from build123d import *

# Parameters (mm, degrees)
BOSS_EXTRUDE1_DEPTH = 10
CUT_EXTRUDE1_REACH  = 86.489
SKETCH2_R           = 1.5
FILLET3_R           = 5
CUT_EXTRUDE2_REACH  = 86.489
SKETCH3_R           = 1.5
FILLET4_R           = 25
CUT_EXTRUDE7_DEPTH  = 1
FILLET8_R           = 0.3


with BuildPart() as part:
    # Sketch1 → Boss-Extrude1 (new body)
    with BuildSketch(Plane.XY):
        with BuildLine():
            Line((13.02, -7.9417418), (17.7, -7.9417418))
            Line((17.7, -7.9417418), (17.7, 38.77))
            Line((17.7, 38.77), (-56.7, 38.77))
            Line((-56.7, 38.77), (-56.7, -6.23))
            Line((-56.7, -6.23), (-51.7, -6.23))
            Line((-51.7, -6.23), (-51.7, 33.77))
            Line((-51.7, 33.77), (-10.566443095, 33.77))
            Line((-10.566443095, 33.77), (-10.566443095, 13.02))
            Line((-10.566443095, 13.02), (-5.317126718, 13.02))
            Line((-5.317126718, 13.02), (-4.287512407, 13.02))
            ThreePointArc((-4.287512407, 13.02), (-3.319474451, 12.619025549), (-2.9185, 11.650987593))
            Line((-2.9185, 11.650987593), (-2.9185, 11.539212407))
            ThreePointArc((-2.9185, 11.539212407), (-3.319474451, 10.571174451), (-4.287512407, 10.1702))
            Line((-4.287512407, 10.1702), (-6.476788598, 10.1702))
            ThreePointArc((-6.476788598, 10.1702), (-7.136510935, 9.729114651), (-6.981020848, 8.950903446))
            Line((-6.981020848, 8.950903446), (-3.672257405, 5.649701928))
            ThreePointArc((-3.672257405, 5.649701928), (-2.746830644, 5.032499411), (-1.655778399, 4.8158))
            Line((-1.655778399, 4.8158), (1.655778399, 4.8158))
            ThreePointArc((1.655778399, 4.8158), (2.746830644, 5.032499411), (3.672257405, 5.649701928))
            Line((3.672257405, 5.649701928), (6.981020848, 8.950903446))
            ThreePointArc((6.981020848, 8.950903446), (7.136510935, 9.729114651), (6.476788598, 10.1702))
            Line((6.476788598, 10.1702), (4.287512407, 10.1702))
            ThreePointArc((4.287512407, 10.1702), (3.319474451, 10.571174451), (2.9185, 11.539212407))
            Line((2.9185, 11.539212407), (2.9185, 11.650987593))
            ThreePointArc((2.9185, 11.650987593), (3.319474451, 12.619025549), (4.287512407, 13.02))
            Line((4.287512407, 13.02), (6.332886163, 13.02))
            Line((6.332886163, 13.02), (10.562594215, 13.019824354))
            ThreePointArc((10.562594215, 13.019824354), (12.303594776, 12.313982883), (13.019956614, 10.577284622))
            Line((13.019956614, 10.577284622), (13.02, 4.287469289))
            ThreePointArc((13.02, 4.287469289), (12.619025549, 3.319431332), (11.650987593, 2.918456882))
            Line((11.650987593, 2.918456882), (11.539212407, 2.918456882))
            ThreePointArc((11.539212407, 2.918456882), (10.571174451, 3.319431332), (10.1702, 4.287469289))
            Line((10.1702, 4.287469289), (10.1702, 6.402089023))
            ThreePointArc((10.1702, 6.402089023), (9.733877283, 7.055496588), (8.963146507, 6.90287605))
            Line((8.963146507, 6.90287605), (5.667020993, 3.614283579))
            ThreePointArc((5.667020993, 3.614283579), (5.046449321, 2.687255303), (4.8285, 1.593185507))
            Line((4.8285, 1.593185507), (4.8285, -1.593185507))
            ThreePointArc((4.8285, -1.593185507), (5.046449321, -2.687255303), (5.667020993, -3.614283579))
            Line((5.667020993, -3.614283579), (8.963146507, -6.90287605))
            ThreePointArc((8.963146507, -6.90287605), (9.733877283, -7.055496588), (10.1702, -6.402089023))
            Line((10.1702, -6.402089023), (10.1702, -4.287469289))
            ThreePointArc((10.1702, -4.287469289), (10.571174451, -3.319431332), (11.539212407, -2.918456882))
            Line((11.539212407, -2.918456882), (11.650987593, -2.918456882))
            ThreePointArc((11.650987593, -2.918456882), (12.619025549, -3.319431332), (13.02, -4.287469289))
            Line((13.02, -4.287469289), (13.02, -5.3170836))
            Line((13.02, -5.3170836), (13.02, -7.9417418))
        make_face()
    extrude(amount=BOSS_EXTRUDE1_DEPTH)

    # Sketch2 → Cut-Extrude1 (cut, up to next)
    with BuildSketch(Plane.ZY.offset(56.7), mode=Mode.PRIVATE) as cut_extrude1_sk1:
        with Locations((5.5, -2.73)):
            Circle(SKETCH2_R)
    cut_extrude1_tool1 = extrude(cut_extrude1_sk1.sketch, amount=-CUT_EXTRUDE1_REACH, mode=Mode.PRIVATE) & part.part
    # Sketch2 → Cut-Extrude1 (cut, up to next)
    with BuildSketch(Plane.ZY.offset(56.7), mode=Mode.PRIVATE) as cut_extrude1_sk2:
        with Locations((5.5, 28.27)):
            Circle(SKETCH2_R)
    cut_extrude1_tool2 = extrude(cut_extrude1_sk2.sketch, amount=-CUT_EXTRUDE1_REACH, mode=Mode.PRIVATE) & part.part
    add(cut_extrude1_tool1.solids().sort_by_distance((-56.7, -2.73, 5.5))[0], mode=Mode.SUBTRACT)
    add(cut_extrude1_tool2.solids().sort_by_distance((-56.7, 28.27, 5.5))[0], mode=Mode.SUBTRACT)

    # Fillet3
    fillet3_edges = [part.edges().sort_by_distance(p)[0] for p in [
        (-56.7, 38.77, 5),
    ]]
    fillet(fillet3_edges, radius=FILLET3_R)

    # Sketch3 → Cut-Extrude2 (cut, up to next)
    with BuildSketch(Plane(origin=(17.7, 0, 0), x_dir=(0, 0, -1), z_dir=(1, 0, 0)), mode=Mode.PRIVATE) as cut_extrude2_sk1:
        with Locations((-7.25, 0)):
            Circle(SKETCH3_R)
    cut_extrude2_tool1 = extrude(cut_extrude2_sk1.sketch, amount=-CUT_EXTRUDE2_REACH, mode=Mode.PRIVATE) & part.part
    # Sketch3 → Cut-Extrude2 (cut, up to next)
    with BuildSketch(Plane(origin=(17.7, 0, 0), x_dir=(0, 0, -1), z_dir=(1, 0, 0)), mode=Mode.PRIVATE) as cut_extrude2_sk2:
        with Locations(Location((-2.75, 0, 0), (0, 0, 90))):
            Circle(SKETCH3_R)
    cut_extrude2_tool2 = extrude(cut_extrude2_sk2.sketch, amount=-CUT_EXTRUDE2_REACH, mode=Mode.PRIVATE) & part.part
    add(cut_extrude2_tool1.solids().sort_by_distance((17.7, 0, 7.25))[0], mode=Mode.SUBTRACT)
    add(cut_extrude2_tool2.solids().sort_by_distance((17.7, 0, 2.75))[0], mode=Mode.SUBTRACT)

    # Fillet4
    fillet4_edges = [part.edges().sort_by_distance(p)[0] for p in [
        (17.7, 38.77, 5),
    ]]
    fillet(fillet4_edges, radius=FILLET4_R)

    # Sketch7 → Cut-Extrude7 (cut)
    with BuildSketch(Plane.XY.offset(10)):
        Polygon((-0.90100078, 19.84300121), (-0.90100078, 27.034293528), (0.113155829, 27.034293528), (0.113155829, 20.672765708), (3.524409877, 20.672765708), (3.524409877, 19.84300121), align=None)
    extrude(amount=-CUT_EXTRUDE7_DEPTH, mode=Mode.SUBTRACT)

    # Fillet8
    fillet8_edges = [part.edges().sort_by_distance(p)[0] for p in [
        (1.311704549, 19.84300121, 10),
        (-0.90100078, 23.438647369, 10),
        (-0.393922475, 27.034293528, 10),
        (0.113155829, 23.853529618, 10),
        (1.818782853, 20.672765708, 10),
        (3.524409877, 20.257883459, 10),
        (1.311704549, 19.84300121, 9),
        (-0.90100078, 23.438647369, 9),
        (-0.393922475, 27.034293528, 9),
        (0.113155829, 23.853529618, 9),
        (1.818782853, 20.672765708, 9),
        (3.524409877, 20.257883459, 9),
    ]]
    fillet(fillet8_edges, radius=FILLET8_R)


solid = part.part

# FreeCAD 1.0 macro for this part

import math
import FreeCAD as App
import Part
import Sketcher


def edges_at(feature, points):
    """Names of the edges that pass closest to the given points."""
    edges = feature.Shape.Edges
    near = lambda p: min(range(len(edges)), key=lambda i: edges[i].distToShape(Part.Vertex(*p))[0])
    return sorted({f"Edge{near(p) + 1}" for p in points})


def add_polygon(sketch, points):
    """Adds a closed chain of lines whose ends are joined by coincident constraints."""
    first, n = sketch.GeometryCount, len(points)
    for a, b in zip(points, points[1:] + points[:1]):
        sketch.addGeometry(Part.LineSegment(App.Vector(*a, 0), App.Vector(*b, 0)), False)
    for i in range(n):
        sketch.addConstraint(Sketcher.Constraint("Coincident", first + i, 2, first + (i + 1) % n, 1))

doc = App.newDocument("Part")
body = doc.addObject("PartDesign::Body", "Body")

# Sketch on XY plane
sketch1 = body.newObject("Sketcher::SketchObject", "Sketch")
sketch1.AttachmentSupport = (doc.getObject("XY_Plane"), [""])
sketch1.MapMode = "FlatFace"
sketch1.addGeometry(Part.LineSegment(App.Vector(13.02, -7.941742, 0), App.Vector(17.7, -7.941742, 0)), False)
sketch1.addGeometry(Part.LineSegment(App.Vector(17.7, -7.941742, 0), App.Vector(17.7, 38.77, 0)), False)
sketch1.addGeometry(Part.LineSegment(App.Vector(17.7, 38.77, 0), App.Vector(-56.7, 38.77, 0)), False)
sketch1.addGeometry(Part.LineSegment(App.Vector(-56.7, 38.77, 0), App.Vector(-56.7, -6.23, 0)), False)
sketch1.addGeometry(Part.LineSegment(App.Vector(-56.7, -6.23, 0), App.Vector(-51.7, -6.23, 0)), False)
sketch1.addGeometry(Part.LineSegment(App.Vector(-51.7, -6.23, 0), App.Vector(-51.7, 33.77, 0)), False)
sketch1.addGeometry(Part.LineSegment(App.Vector(-51.7, 33.77, 0), App.Vector(-10.566443, 33.77, 0)), False)
sketch1.addGeometry(Part.LineSegment(App.Vector(-10.566443, 33.77, 0), App.Vector(-10.566443, 13.02, 0)), False)
sketch1.addGeometry(Part.LineSegment(App.Vector(-10.566443, 13.02, 0), App.Vector(-4.287512, 13.02, 0)), False)
sketch1.addGeometry(Part.ArcOfCircle(Part.Circle(App.Vector(-4.287512, 11.650988, 0), App.Vector(0, 0, 1), 1.369012), math.radians(0), math.radians(90)), False)
sketch1.addGeometry(Part.LineSegment(App.Vector(-2.9185, 11.650988, 0), App.Vector(-2.9185, 11.539212, 0)), False)
sketch1.addGeometry(Part.ArcOfCircle(Part.Circle(App.Vector(-4.287512, 11.539212, 0), App.Vector(0, 0, 1), 1.369012), math.radians(-90), math.radians(0)), False)
sketch1.addGeometry(Part.LineSegment(App.Vector(-4.287512, 10.1702, 0), App.Vector(-6.476789, 10.1702, 0)), False)
sketch1.addGeometry(Part.ArcOfCircle(Part.Circle(App.Vector(-6.476789, 9.456291, 0), App.Vector(0, 0, 1), 0.713909), math.radians(90), math.radians(225.065547)), False)
sketch1.addGeometry(Part.LineSegment(App.Vector(-6.981021, 8.950903, 0), App.Vector(-3.672257, 5.649702, 0)), False)
sketch1.addGeometry(Part.ArcOfCircle(Part.Circle(App.Vector(-1.655778, 7.6708, 0), App.Vector(0, 0, 1), 2.855), math.radians(-134.934453), math.radians(-90)), False)
sketch1.addGeometry(Part.LineSegment(App.Vector(-1.655778, 4.8158, 0), App.Vector(1.655778, 4.8158, 0)), False)
sketch1.addGeometry(Part.ArcOfCircle(Part.Circle(App.Vector(1.655778, 7.6708, 0), App.Vector(0, 0, 1), 2.855), math.radians(-90), math.radians(-45.065547)), False)
sketch1.addGeometry(Part.LineSegment(App.Vector(3.672257, 5.649702, 0), App.Vector(6.981021, 8.950903, 0)), False)
sketch1.addGeometry(Part.ArcOfCircle(Part.Circle(App.Vector(6.476789, 9.456291, 0), App.Vector(0, 0, 1), 0.713909), math.radians(-45.065547), math.radians(90)), False)
sketch1.addGeometry(Part.LineSegment(App.Vector(6.476789, 10.1702, 0), App.Vector(4.287512, 10.1702, 0)), False)
sketch1.addGeometry(Part.ArcOfCircle(Part.Circle(App.Vector(4.287512, 11.539212, 0), App.Vector(0, 0, 1), 1.369012), math.radians(-180), math.radians(-90)), False)
sketch1.addGeometry(Part.LineSegment(App.Vector(2.9185, 11.539212, 0), App.Vector(2.9185, 11.650988, 0)), False)
sketch1.addGeometry(Part.ArcOfCircle(Part.Circle(App.Vector(4.287512, 11.650988, 0), App.Vector(0, 0, 1), 1.369012), math.radians(90), math.radians(180)), False)
sketch1.addGeometry(Part.LineSegment(App.Vector(4.287512, 13.02, 0), App.Vector(6.332886, 13.02, 0)), False)
sketch1.addGeometry(Part.LineSegment(App.Vector(6.332886, 13.02, 0), App.Vector(10.562594, 13.019824, 0)), False)
sketch1.addGeometry(Part.ArcOfCircle(Part.Circle(App.Vector(10.5918, 10.5918, 0), App.Vector(0, 0, 1), 2.4282), math.radians(-0.342507), math.radians(90.689156)), False)
sketch1.addGeometry(Part.LineSegment(App.Vector(13.019957, 10.577285, 0), App.Vector(13.02, 4.287469, 0)), False)
sketch1.addGeometry(Part.ArcOfCircle(Part.Circle(App.Vector(11.650988, 4.287469, 0), App.Vector(0, 0, 1), 1.369012), math.radians(-90), math.radians(0)), False)
sketch1.addGeometry(Part.LineSegment(App.Vector(11.650988, 2.918457, 0), App.Vector(11.539212, 2.918457, 0)), False)
sketch1.addGeometry(Part.ArcOfCircle(Part.Circle(App.Vector(11.539212, 4.287469, 0), App.Vector(0, 0, 1), 1.369012), math.radians(180), math.radians(270)), False)
sketch1.addGeometry(Part.LineSegment(App.Vector(10.1702, 4.287469, 0), App.Vector(10.1702, 6.402089, 0)), False)
sketch1.addGeometry(Part.ArcOfCircle(Part.Circle(App.Vector(9.462789, 6.402089, 0), App.Vector(0, 0, 1), 0.707411), math.radians(0), math.radians(134.934453)), False)
sketch1.addGeometry(Part.LineSegment(App.Vector(8.963147, 6.902876, 0), App.Vector(5.667021, 3.614284, 0)), False)
sketch1.addGeometry(Part.ArcOfCircle(Part.Circle(App.Vector(7.6835, 1.593186, 0), App.Vector(0, 0, 1), 2.855), math.radians(134.934453), math.radians(180)), False)
sketch1.addGeometry(Part.LineSegment(App.Vector(4.8285, 1.593186, 0), App.Vector(4.8285, -1.593186, 0)), False)
sketch1.addGeometry(Part.ArcOfCircle(Part.Circle(App.Vector(7.6835, -1.593186, 0), App.Vector(0, 0, 1), 2.855), math.radians(180), math.radians(225.065547)), False)
sketch1.addGeometry(Part.LineSegment(App.Vector(5.667021, -3.614284, 0), App.Vector(8.963147, -6.902876, 0)), False)
sketch1.addGeometry(Part.ArcOfCircle(Part.Circle(App.Vector(9.462789, -6.402089, 0), App.Vector(0, 0, 1), 0.707411), math.radians(-134.934453), math.radians(0)), False)
sketch1.addGeometry(Part.LineSegment(App.Vector(10.1702, -6.402089, 0), App.Vector(10.1702, -4.287469, 0)), False)
sketch1.addGeometry(Part.ArcOfCircle(Part.Circle(App.Vector(11.539212, -4.287469, 0), App.Vector(0, 0, 1), 1.369012), math.radians(90), math.radians(180)), False)
sketch1.addGeometry(Part.LineSegment(App.Vector(11.539212, -2.918457, 0), App.Vector(11.650988, -2.918457, 0)), False)
sketch1.addGeometry(Part.ArcOfCircle(Part.Circle(App.Vector(11.650988, -4.287469, 0), App.Vector(0, 0, 1), 1.369012), math.radians(0), math.radians(90)), False)
sketch1.addGeometry(Part.LineSegment(App.Vector(13.02, -4.287469, 0), App.Vector(13.02, -7.941742, 0)), False)
sketch1.addConstraint(Sketcher.Constraint("Coincident", 0, 2, 1, 1))
sketch1.addConstraint(Sketcher.Constraint("Coincident", 1, 2, 2, 1))
sketch1.addConstraint(Sketcher.Constraint("Coincident", 2, 2, 3, 1))
sketch1.addConstraint(Sketcher.Constraint("Coincident", 3, 2, 4, 1))
sketch1.addConstraint(Sketcher.Constraint("Coincident", 4, 2, 5, 1))
sketch1.addConstraint(Sketcher.Constraint("Coincident", 5, 2, 6, 1))
sketch1.addConstraint(Sketcher.Constraint("Coincident", 6, 2, 7, 1))
sketch1.addConstraint(Sketcher.Constraint("Coincident", 7, 2, 8, 1))
sketch1.addConstraint(Sketcher.Constraint("Tangent", 8, 2, 9, 2))
sketch1.addConstraint(Sketcher.Constraint("Tangent", 9, 1, 10, 1))
sketch1.addConstraint(Sketcher.Constraint("Tangent", 10, 2, 11, 2))
sketch1.addConstraint(Sketcher.Constraint("Tangent", 11, 1, 12, 1))
sketch1.addConstraint(Sketcher.Constraint("Tangent", 12, 2, 13, 1))
sketch1.addConstraint(Sketcher.Constraint("Tangent", 13, 2, 14, 1))
sketch1.addConstraint(Sketcher.Constraint("Tangent", 14, 2, 15, 1))
sketch1.addConstraint(Sketcher.Constraint("Tangent", 15, 2, 16, 1))
sketch1.addConstraint(Sketcher.Constraint("Tangent", 16, 2, 17, 1))
sketch1.addConstraint(Sketcher.Constraint("Tangent", 17, 2, 18, 1))
sketch1.addConstraint(Sketcher.Constraint("Tangent", 18, 2, 19, 1))
sketch1.addConstraint(Sketcher.Constraint("Tangent", 19, 2, 20, 1))
sketch1.addConstraint(Sketcher.Constraint("Tangent", 20, 2, 21, 2))
sketch1.addConstraint(Sketcher.Constraint("Tangent", 21, 1, 22, 1))
sketch1.addConstraint(Sketcher.Constraint("Tangent", 22, 2, 23, 2))
sketch1.addConstraint(Sketcher.Constraint("Tangent", 23, 1, 24, 1))
sketch1.addConstraint(Sketcher.Constraint("Coincident", 24, 2, 25, 1))
sketch1.addConstraint(Sketcher.Constraint("Coincident", 25, 2, 26, 2))
sketch1.addConstraint(Sketcher.Constraint("Coincident", 26, 1, 27, 1))
sketch1.addConstraint(Sketcher.Constraint("Coincident", 27, 2, 28, 2))
sketch1.addConstraint(Sketcher.Constraint("Tangent", 28, 1, 29, 1))
sketch1.addConstraint(Sketcher.Constraint("Tangent", 29, 2, 30, 2))
sketch1.addConstraint(Sketcher.Constraint("Tangent", 30, 1, 31, 1))
sketch1.addConstraint(Sketcher.Constraint("Tangent", 31, 2, 32, 1))
sketch1.addConstraint(Sketcher.Constraint("Tangent", 32, 2, 33, 1))
sketch1.addConstraint(Sketcher.Constraint("Tangent", 33, 2, 34, 1))
sketch1.addConstraint(Sketcher.Constraint("Tangent", 34, 2, 35, 1))
sketch1.addConstraint(Sketcher.Constraint("Tangent", 35, 2, 36, 1))
sketch1.addConstraint(Sketcher.Constraint("Tangent", 36, 2, 37, 1))
sketch1.addConstraint(Sketcher.Constraint("Tangent", 37, 2, 38, 1))
sketch1.addConstraint(Sketcher.Constraint("Tangent", 38, 2, 39, 1))
sketch1.addConstraint(Sketcher.Constraint("Tangent", 39, 2, 40, 2))
sketch1.addConstraint(Sketcher.Constraint("Tangent", 40, 1, 41, 1))
sketch1.addConstraint(Sketcher.Constraint("Tangent", 41, 2, 42, 2))
sketch1.addConstraint(Sketcher.Constraint("Tangent", 42, 1, 43, 1))
sketch1.addConstraint(Sketcher.Constraint("Coincident", 43, 2, 0, 1))
sketch1.addConstraint(Sketcher.Constraint("Horizontal", 0))
sketch1.addConstraint(Sketcher.Constraint("Vertical", 1))
sketch1.addConstraint(Sketcher.Constraint("Horizontal", 2))
sketch1.addConstraint(Sketcher.Constraint("Vertical", 3))
sketch1.addConstraint(Sketcher.Constraint("Horizontal", 4))
sketch1.addConstraint(Sketcher.Constraint("Vertical", 5))
sketch1.addConstraint(Sketcher.Constraint("Horizontal", 6))
sketch1.addConstraint(Sketcher.Constraint("Vertical", 7))
sketch1.addConstraint(Sketcher.Constraint("Horizontal", 8))
sketch1.addConstraint(Sketcher.Constraint("Vertical", 10))
sketch1.addConstraint(Sketcher.Constraint("Horizontal", 12))
sketch1.addConstraint(Sketcher.Constraint("Horizontal", 16))
sketch1.addConstraint(Sketcher.Constraint("Horizontal", 20))
sketch1.addConstraint(Sketcher.Constraint("Vertical", 22))
sketch1.addConstraint(Sketcher.Constraint("Horizontal", 24))
sketch1.addConstraint(Sketcher.Constraint("Horizontal", 29))
sketch1.addConstraint(Sketcher.Constraint("Vertical", 31))
sketch1.addConstraint(Sketcher.Constraint("Vertical", 35))
sketch1.addConstraint(Sketcher.Constraint("Vertical", 39))
sketch1.addConstraint(Sketcher.Constraint("Horizontal", 41))
sketch1.addConstraint(Sketcher.Constraint("Vertical", 43))
sketch1.addConstraint(Sketcher.Constraint("Equal", 9, 11))
sketch1.addConstraint(Sketcher.Constraint("Equal", 15, 17))
sketch1.addConstraint(Sketcher.Constraint("Equal", 13, 19))
sketch1.addConstraint(Sketcher.Constraint("Equal", 11, 21))
sketch1.addConstraint(Sketcher.Constraint("Equal", 21, 23))
sketch1.addConstraint(Sketcher.Constraint("Equal", 23, 28))
sketch1.addConstraint(Sketcher.Constraint("Equal", 28, 30))
sketch1.addConstraint(Sketcher.Constraint("Equal", 17, 34))
sketch1.addConstraint(Sketcher.Constraint("Equal", 34, 36))
sketch1.addConstraint(Sketcher.Constraint("Equal", 32, 38))
sketch1.addConstraint(Sketcher.Constraint("Equal", 30, 40))
sketch1.addConstraint(Sketcher.Constraint("Equal", 40, 42))
sketch1.addConstraint(Sketcher.Constraint("Symmetric", 13, 3, 19, 3, -2))
sketch1.addConstraint(Sketcher.Constraint("Symmetric", 9, 3, 23, 3, -2))
sketch1.addConstraint(Sketcher.Constraint("Symmetric", 32, 3, 38, 3, -1))
sketch1.addConstraint(Sketcher.Constraint("Symmetric", 28, 3, 42, 3, -1))
sketch1.addConstraint(Sketcher.Constraint("Parallel", 18, 33))
sketch1.addConstraint(Sketcher.Constraint("Parallel", 14, 37))
sketch1.addConstraint(Sketcher.Constraint("Horizontal", 14, 2, 17, 2))
sketch1.addConstraint(Sketcher.Constraint("Horizontal", 30, 3, 27, 2))
sketch1.addConstraint(Sketcher.Constraint("Equal", 41, 10))
sketch1.addConstraint(Sketcher.Constraint("DistanceX", 4, 1, 4, 2, 5.0))
sketch1.addConstraint(Sketcher.Constraint("DistanceY", 3, 2, 3, 1, 45.0))
sketch1.addConstraint(Sketcher.Constraint("DistanceY", 5, 1, 5, 2, 40.0))
sketch1.addConstraint(Sketcher.Constraint("DistanceX", 2, 2, 2, 1, 74.4))
sketch1.addConstraint(Sketcher.Constraint("Radius", 15, 2.855))
sketch1.addConstraint(Sketcher.Constraint("DistanceX", 0, 1, 0, 2, 4.68))
sketch1.addConstraint(Sketcher.Constraint("DistanceY", 7, 2, 7, 1, 20.75))
sketch1.addConstraint(Sketcher.Constraint("DistanceX", -1, 1, 0, 2, 17.7))
sketch1.addConstraint(Sketcher.Constraint("Radius", 26, 2.4282))
sketch1.addConstraint(Sketcher.Constraint("DistanceY", -1, 1, 1, 2, 38.77))
sketch1.addConstraint(Sketcher.Constraint("Radius", 13, 0.713909))
sketch1.addConstraint(Sketcher.Constraint("Radius", 32, 0.707411))
sketch1.addConstraint(Sketcher.Constraint("Radius", 9, 1.369012))
sketch1.addConstraint(Sketcher.Constraint("Distance", 33, 4.656102))
sketch1.addConstraint(Sketcher.Constraint("DistanceX", 8, 1, 8, 2, 6.278931))
sketch1.addConstraint(Sketcher.Constraint("DistanceY", 1, 1, 1, 2, 46.711742))
sketch1.addConstraint(Sketcher.Constraint("DistanceY", 31, 1, 31, 2, 2.11462))
sketch1.addConstraint(Sketcher.Constraint("DistanceY", 35, 2, 35, 1, 3.186371))
sketch1.addConstraint(Sketcher.Constraint("DistanceY", -1, 1, 15, 3, 7.6708))
sketch1.addConstraint(Sketcher.Constraint("DistanceX", -1, 1, 26, 3, 10.5918))
sketch1.addConstraint(Sketcher.Constraint("DistanceY", -1, 1, 26, 3, 10.5918))
sketch1.addConstraint(Sketcher.Constraint("DistanceX", -1, 1, 34, 3, 7.6835))
sketch1.addConstraint(Sketcher.Constraint("DistanceX", 9, 1, -1, 1, 2.9185))
sketch1.addConstraint(Sketcher.Constraint("DistanceY", -1, 1, 11, 1, 10.1702))
sketch1.addConstraint(Sketcher.Constraint("Distance", 25, 4.229708))
sketch1.addConstraint(Sketcher.Constraint("DistanceX", 12, 2, 12, 1, 2.189276))
sketch1.addConstraint(Sketcher.Constraint("DistanceX", 24, 1, 24, 2, 2.045374))
sketch1.addConstraint(Sketcher.Constraint("Distance", 27, 6.289815))
pad1 = body.newObject("PartDesign::Pad", "Pad")
pad1.Profile = sketch1
pad1.Length = 10

# Sketch on YZ plane
sketch2 = body.newObject("Sketcher::SketchObject", "Sketch001")
sketch2.AttachmentSupport = (doc.getObject("YZ_Plane"), [""])
sketch2.MapMode = "FlatFace"
sketch2.AttachmentOffset = App.Placement(App.Vector(0, 0, -56.7), App.Rotation())
sketch2.addGeometry(Part.Circle(App.Vector(-2.73, 5.5, 0), App.Vector(0, 0, 1), 1.5), False)
sketch2.addConstraint(Sketcher.Constraint("Diameter", 0, 3.0))
sketch2.addConstraint(Sketcher.Constraint("DistanceY", -1, 1, 0, 3, 5.5))
sketch2.addConstraint(Sketcher.Constraint("DistanceX", 0, 3, -1, 1, 2.73))
pocket1 = body.newObject("PartDesign::Pocket", "Pocket")
pocket1.Profile = sketch2
pocket1.Type = "UpToFirst"
pocket1.Reversed = True

# Sketch on YZ plane
sketch3 = body.newObject("Sketcher::SketchObject", "Sketch002")
sketch3.AttachmentSupport = (doc.getObject("YZ_Plane"), [""])
sketch3.MapMode = "FlatFace"
sketch3.AttachmentOffset = App.Placement(App.Vector(0, 0, -56.7), App.Rotation())
sketch3.addGeometry(Part.Circle(App.Vector(28.27, 5.5, 0), App.Vector(0, 0, 1), 1.5), False)
sketch3.addConstraint(Sketcher.Constraint("Diameter", 0, 3.0))
sketch3.addConstraint(Sketcher.Constraint("DistanceY", -1, 1, 0, 3, 5.5))
sketch3.addConstraint(Sketcher.Constraint("DistanceX", -1, 1, 0, 3, 28.27))
pocket2 = body.newObject("PartDesign::Pocket", "Pocket001")
pocket2.Profile = sketch3
pocket2.Type = "UpToFirst"
pocket2.Reversed = True
doc.recompute()

fillet = body.newObject("PartDesign::Fillet", "Fillet")
fillet.Base = (pocket2, edges_at(pocket2, [(-56.7, 38.77, 5)]))
fillet.Radius = 5

# Sketch on YZ plane
sketch4 = body.newObject("Sketcher::SketchObject", "Sketch003")
sketch4.AttachmentSupport = (doc.getObject("YZ_Plane"), [""])
sketch4.MapMode = "FlatFace"
sketch4.AttachmentOffset = App.Placement(App.Vector(0, 0, 17.7), App.Rotation())
sketch4.addGeometry(Part.Circle(App.Vector(0, 7.25, 0), App.Vector(0, 0, 1), 1.5), False)
sketch4.addConstraint(Sketcher.Constraint("PointOnObject", 0, 3, -2))
sketch4.addConstraint(Sketcher.Constraint("Diameter", 0, 3.0))
sketch4.addConstraint(Sketcher.Constraint("DistanceY", -1, 1, 0, 3, 7.25))
pocket3 = body.newObject("PartDesign::Pocket", "Pocket002")
pocket3.Profile = sketch4
pocket3.Type = "UpToFirst"

# Sketch on YZ plane
sketch5 = body.newObject("Sketcher::SketchObject", "Sketch004")
sketch5.AttachmentSupport = (doc.getObject("YZ_Plane"), [""])
sketch5.MapMode = "FlatFace"
sketch5.AttachmentOffset = App.Placement(App.Vector(0, 0, 17.7), App.Rotation())
sketch5.addGeometry(Part.Circle(App.Vector(0, 2.75, 0), App.Vector(0, 0, 1), 1.5), False)
sketch5.addConstraint(Sketcher.Constraint("PointOnObject", 0, 3, -2))
sketch5.addConstraint(Sketcher.Constraint("Diameter", 0, 3.0))
sketch5.addConstraint(Sketcher.Constraint("DistanceY", -1, 1, 0, 3, 2.75))
pocket4 = body.newObject("PartDesign::Pocket", "Pocket003")
pocket4.Profile = sketch5
pocket4.Type = "UpToFirst"
doc.recompute()

fillet2 = body.newObject("PartDesign::Fillet", "Fillet001")
fillet2.Base = (pocket4, edges_at(pocket4, [(17.7, 38.77, 5)]))
fillet2.Radius = 25

# Sketch on XY plane
sketch6 = body.newObject("Sketcher::SketchObject", "Sketch005")
sketch6.AttachmentSupport = (doc.getObject("XY_Plane"), [""])
sketch6.MapMode = "FlatFace"
sketch6.AttachmentOffset = App.Placement(App.Vector(0, 0, 10), App.Rotation())
add_polygon(sketch6, [(-0.901001, 27.034294), (-0.901001, 19.843001), (3.52441, 19.843001), (3.52441, 20.672766), (0.113156, 20.672766), (0.113156, 27.034294)])  # lines 0-5
sketch6.addConstraint(Sketcher.Constraint("Vertical", 0))
sketch6.addConstraint(Sketcher.Constraint("Horizontal", 1))
sketch6.addConstraint(Sketcher.Constraint("Vertical", 2))
sketch6.addConstraint(Sketcher.Constraint("Horizontal", 3))
sketch6.addConstraint(Sketcher.Constraint("Vertical", 4))
sketch6.addConstraint(Sketcher.Constraint("Horizontal", 5))
sketch6.addConstraint(Sketcher.Constraint("DistanceX", 0, 2, -1, 1, 0.901001))
sketch6.addConstraint(Sketcher.Constraint("DistanceY", -1, 1, 0, 2, 19.843001))
sketch6.addConstraint(Sketcher.Constraint("DistanceX", 1, 1, 1, 2, 4.425411))
sketch6.addConstraint(Sketcher.Constraint("DistanceX", 3, 2, 3, 1, 3.411254))
sketch6.addConstraint(Sketcher.Constraint("DistanceY", 0, 2, 0, 1, 7.191292))
sketch6.addConstraint(Sketcher.Constraint("DistanceY", 2, 1, 2, 2, 0.829764))
pocket5 = body.newObject("PartDesign::Pocket", "Pocket004")
pocket5.Profile = sketch6
pocket5.Length = 1
doc.recompute()

fillet3 = body.newObject("PartDesign::Fillet", "Fillet002")
fillet3.Base = (pocket5, edges_at(pocket5, [
    (1.312, 19.843, 10),
    (-0.901, 23.439, 10),
    (-0.394, 27.034, 10),
    (0.113, 23.854, 10),
    (1.819, 20.673, 10),
    (3.524, 20.258, 10),
    (1.312, 19.843, 9),
    (-0.901, 23.439, 9),
    (-0.394, 27.034, 9),
    (0.113, 23.854, 9),
    (1.819, 20.673, 9),
    (3.524, 20.258, 9),
]))
fillet3.Radius = 0.3

doc.recompute()
